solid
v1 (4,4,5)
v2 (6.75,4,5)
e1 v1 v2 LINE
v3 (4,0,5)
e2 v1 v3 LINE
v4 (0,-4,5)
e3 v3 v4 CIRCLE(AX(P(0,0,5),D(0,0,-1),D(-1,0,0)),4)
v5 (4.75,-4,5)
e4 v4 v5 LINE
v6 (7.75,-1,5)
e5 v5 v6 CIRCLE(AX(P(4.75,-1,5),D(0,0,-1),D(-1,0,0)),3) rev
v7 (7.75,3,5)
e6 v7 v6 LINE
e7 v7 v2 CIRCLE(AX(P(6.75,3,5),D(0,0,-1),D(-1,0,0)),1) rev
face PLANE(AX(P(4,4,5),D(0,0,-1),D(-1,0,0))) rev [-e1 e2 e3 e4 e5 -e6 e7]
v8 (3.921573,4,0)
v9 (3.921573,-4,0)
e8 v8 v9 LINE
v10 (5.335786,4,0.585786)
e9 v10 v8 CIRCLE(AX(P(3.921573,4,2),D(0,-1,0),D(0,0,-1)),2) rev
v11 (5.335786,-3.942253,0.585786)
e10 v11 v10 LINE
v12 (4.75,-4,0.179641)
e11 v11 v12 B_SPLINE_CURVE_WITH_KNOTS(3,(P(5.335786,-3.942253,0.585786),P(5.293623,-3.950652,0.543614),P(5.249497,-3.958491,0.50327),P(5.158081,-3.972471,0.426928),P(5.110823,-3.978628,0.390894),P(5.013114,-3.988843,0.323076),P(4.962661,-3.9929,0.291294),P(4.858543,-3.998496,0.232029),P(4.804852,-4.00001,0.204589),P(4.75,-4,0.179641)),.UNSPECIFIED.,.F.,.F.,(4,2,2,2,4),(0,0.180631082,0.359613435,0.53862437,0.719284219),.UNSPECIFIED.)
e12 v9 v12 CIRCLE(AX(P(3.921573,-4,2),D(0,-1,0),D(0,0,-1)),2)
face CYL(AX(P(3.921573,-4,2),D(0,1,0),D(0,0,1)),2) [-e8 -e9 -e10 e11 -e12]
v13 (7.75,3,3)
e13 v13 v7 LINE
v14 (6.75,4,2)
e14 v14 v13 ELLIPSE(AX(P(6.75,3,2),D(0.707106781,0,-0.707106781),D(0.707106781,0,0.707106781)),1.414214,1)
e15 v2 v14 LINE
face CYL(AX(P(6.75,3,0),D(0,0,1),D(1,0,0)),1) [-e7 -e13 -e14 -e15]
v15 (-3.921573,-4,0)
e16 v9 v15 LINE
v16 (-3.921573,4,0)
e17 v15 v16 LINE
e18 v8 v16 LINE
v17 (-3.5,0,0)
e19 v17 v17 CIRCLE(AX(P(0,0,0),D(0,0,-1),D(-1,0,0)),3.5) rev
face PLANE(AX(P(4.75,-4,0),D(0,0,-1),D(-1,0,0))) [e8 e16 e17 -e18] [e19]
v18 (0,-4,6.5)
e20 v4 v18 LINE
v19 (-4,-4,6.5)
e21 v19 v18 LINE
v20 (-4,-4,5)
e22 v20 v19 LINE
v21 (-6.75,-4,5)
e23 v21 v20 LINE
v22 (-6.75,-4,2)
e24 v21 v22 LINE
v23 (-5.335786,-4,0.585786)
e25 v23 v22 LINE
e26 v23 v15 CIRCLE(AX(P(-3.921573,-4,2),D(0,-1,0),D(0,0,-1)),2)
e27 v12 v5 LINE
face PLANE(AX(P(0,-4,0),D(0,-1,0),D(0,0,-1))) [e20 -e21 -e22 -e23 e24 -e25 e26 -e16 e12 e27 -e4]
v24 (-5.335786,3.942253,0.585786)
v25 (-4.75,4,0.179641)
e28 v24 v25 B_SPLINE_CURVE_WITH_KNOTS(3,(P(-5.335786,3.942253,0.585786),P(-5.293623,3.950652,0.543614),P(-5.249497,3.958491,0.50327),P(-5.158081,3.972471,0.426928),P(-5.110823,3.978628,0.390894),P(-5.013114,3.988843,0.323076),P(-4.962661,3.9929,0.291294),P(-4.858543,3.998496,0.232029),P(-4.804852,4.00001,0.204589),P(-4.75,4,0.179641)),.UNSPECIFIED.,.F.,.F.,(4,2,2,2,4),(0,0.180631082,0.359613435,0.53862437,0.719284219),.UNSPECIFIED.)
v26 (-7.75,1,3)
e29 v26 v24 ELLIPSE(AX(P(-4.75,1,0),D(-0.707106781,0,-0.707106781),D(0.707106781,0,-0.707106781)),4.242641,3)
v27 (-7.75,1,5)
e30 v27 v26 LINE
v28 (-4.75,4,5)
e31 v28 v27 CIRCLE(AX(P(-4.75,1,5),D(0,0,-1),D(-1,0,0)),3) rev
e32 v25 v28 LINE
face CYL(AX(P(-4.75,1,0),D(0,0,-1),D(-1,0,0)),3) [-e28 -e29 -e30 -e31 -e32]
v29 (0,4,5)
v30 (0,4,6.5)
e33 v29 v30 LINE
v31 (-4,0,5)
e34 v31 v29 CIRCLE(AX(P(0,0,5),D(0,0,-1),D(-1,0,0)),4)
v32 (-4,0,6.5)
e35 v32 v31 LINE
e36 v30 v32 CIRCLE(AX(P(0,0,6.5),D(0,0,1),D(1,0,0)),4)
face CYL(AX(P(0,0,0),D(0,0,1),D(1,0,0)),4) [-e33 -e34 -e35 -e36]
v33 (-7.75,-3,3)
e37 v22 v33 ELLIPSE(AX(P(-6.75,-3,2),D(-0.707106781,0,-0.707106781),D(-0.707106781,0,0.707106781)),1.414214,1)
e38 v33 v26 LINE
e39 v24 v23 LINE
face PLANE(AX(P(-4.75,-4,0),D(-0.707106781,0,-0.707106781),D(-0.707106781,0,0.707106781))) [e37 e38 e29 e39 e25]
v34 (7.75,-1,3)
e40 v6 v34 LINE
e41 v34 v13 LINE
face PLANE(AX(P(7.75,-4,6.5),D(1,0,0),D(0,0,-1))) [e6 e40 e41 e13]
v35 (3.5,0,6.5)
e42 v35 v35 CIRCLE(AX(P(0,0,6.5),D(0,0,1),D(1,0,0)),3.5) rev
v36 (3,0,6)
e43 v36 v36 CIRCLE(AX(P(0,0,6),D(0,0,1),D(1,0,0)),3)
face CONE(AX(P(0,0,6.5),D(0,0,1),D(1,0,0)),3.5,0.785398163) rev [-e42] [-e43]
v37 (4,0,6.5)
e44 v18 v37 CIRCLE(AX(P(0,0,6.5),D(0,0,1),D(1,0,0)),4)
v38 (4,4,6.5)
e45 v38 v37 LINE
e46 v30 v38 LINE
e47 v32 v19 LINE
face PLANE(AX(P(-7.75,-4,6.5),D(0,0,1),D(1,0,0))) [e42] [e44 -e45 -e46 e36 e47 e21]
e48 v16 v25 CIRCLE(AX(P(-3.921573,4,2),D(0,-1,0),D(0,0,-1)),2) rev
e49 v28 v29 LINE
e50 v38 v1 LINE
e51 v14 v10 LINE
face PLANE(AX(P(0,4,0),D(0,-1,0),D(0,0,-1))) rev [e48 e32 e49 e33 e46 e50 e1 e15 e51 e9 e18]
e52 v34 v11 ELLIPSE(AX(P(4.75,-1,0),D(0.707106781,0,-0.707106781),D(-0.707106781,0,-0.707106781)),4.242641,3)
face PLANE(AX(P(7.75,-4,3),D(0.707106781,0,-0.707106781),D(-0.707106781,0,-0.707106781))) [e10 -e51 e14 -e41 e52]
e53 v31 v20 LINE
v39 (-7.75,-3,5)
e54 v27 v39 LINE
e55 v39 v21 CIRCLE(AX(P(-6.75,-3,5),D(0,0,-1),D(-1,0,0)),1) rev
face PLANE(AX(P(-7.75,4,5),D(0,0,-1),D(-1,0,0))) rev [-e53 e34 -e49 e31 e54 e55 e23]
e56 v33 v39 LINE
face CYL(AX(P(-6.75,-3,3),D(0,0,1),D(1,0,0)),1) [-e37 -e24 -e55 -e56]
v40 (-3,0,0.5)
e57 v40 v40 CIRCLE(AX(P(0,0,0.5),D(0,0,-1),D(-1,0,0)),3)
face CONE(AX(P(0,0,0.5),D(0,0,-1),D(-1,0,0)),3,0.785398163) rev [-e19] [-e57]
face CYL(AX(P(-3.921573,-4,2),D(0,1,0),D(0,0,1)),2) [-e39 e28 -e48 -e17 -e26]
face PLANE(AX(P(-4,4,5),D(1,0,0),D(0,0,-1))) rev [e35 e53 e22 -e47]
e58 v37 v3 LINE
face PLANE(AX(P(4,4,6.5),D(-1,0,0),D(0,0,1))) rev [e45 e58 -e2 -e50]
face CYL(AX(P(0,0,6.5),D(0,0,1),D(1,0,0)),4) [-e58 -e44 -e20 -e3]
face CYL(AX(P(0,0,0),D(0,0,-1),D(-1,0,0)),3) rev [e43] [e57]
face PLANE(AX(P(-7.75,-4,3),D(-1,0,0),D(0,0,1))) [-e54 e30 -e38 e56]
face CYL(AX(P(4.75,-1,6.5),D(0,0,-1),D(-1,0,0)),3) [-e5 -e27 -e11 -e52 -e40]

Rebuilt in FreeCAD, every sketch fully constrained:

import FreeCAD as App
import Part
import Sketcher


def edges_at(feature, points):
    """Names of the edges that pass closest to the given points."""
    edges = feature.Shape.Edges
    near = lambda p: min(range(len(edges)), key=lambda i: edges[i].distToShape(Part.Vertex(*p))[0])
    return sorted({f"Edge{near(p) + 1}" for p in points})

doc = App.newDocument("Part")
body = doc.addObject("PartDesign::Body", "Body")

# Sketch on XZ plane
sketch1 = body.newObject("Sketcher::SketchObject", "Sketch")
sketch1.AttachmentSupport = (doc.getObject("XZ_Plane"), [""])
sketch1.MapMode = "FlatFace"
sketch1.AttachmentOffset = App.Placement(App.Vector(0, 0, -4), App.Rotation())
sketch1.addGeometry(Part.LineSegment(App.Vector(-7.8, 3, 0), App.Vector(-7.8, 6.5, 0)), False)
sketch1.addGeometry(Part.LineSegment(App.Vector(-7.8, 6.5, 0), App.Vector(7.8, 6.5, 0)), False)
sketch1.addGeometry(Part.LineSegment(App.Vector(7.8, 6.5, 0), App.Vector(7.8, 3, 0)), False)
sketch1.addGeometry(Part.LineSegment(App.Vector(7.8, 3, 0), App.Vector(4.8, 0, 0)), False)
sketch1.addGeometry(Part.LineSegment(App.Vector(4.8, 0, 0), App.Vector(-4.8, 0, 0)), False)
sketch1.addGeometry(Part.LineSegment(App.Vector(-4.8, 0, 0), App.Vector(-7.8, 3, 0)), False)
sketch1.addConstraint(Sketcher.Constraint("Coincident", 0, 2, 1, 1))
sketch1.addConstraint(Sketcher.Constraint("Coincident", 1, 2, 2, 1))
sketch1.addConstraint(Sketcher.Constraint("Coincident", 2, 2, 3, 1))
sketch1.addConstraint(Sketcher.Constraint("Coincident", 3, 2, 4, 1))
sketch1.addConstraint(Sketcher.Constraint("Coincident", 4, 2, 5, 1))
sketch1.addConstraint(Sketcher.Constraint("Coincident", 5, 2, 0, 1))
sketch1.addConstraint(Sketcher.Constraint("Vertical", 0))
sketch1.addConstraint(Sketcher.Constraint("Horizontal", 1))
sketch1.addConstraint(Sketcher.Constraint("Vertical", 2))
sketch1.addConstraint(Sketcher.Constraint("Horizontal", 4))
sketch1.addConstraint(Sketcher.Constraint("Symmetric", 3, 2, 4, 2, -1, 1))
sketch1.addConstraint(Sketcher.Constraint("Symmetric", 2, 2, 5, 2, -2))
sketch1.addConstraint(Sketcher.Constraint("Perpendicular", 3, 5))
sketch1.addConstraint(Sketcher.Constraint("DistanceX", 1, 1, 1, 2, 15.5))
sketch1.addConstraint(Sketcher.Constraint("DistanceX", 4, 2, 4, 1, 9.5))
sketch1.addConstraint(Sketcher.Constraint("DistanceY", 0, 1, 0, 2, 3.5))
pad1 = body.newObject("PartDesign::Pad", "Pad")
pad1.Profile = sketch1
pad1.Length = 8

# Sketch on XZ plane
sketch2 = body.newObject("Sketcher::SketchObject", "Sketch001")
sketch2.AttachmentSupport = (doc.getObject("XZ_Plane"), [""])
sketch2.MapMode = "FlatFace"
sketch2.AttachmentOffset = App.Placement(App.Vector(0, 0, 4), App.Rotation())
sketch2.addGeometry(Part.LineSegment(App.Vector(-7.8, 6.5, 0), App.Vector(-7.8, 5, 0)), False)
sketch2.addGeometry(Part.LineSegment(App.Vector(-7.8, 5, 0), App.Vector(-4, 5, 0)), False)
sketch2.addGeometry(Part.LineSegment(App.Vector(-4, 5, 0), App.Vector(-4, 6.5, 0)), False)
sketch2.addGeometry(Part.LineSegment(App.Vector(-4, 6.5, 0), App.Vector(-7.8, 6.5, 0)), False)
sketch2.addConstraint(Sketcher.Constraint("Coincident", 0, 2, 1, 1))
sketch2.addConstraint(Sketcher.Constraint("Coincident", 1, 2, 2, 1))
sketch2.addConstraint(Sketcher.Constraint("Coincident", 2, 2, 3, 1))
sketch2.addConstraint(Sketcher.Constraint("Coincident", 3, 2, 0, 1))
sketch2.addConstraint(Sketcher.Constraint("Vertical", 0))
sketch2.addConstraint(Sketcher.Constraint("Horizontal", 1))
sketch2.addConstraint(Sketcher.Constraint("Vertical", 2))
sketch2.addConstraint(Sketcher.Constraint("Horizontal", 3))
sketch2.addConstraint(Sketcher.Constraint("DistanceY", 0, 2, 0, 1, 1.5))
sketch2.addConstraint(Sketcher.Constraint("DistanceY", -1, 1, 0, 2, 5.0))
sketch2.addConstraint(Sketcher.Constraint("DistanceX", 1, 2, -1, 1, 4.0))
sketch2.addConstraint(Sketcher.Constraint("DistanceX", 1, 1, 1, 2, 3.75))
pocket1 = body.newObject("PartDesign::Pocket", "Pocket")
pocket1.Profile = sketch2
pocket1.Type = "ThroughAll"

# Sketch on XZ plane
sketch3 = body.newObject("Sketcher::SketchObject", "Sketch002")
sketch3.AttachmentSupport = (doc.getObject("XZ_Plane"), [""])
sketch3.MapMode = "FlatFace"
sketch3.AttachmentOffset = App.Placement(App.Vector(0, 0, 4), App.Rotation())
sketch3.addGeometry(Part.LineSegment(App.Vector(4, 6.5, 0), App.Vector(4, 5, 0)), False)
sketch3.addGeometry(Part.LineSegment(App.Vector(4, 5, 0), App.Vector(7.8, 5, 0)), False)
sketch3.addGeometry(Part.LineSegment(App.Vector(7.8, 5, 0), App.Vector(7.8, 6.5, 0)), False)
sketch3.addGeometry(Part.LineSegment(App.Vector(7.8, 6.5, 0), App.Vector(4, 6.5, 0)), False)
sketch3.addConstraint(Sketcher.Constraint("Coincident", 0, 2, 1, 1))
sketch3.addConstraint(Sketcher.Constraint("Coincident", 1, 2, 2, 1))
sketch3.addConstraint(Sketcher.Constraint("Coincident", 2, 2, 3, 1))
sketch3.addConstraint(Sketcher.Constraint("Coincident", 3, 2, 0, 1))
sketch3.addConstraint(Sketcher.Constraint("Vertical", 0))
sketch3.addConstraint(Sketcher.Constraint("Horizontal", 1))
sketch3.addConstraint(Sketcher.Constraint("Vertical", 2))
sketch3.addConstraint(Sketcher.Constraint("Horizontal", 3))
sketch3.addConstraint(Sketcher.Constraint("DistanceY", 0, 2, 0, 1, 1.5))
sketch3.addConstraint(Sketcher.Constraint("DistanceX", -1, 1, 0, 2, 4.0))
sketch3.addConstraint(Sketcher.Constraint("DistanceY", -1, 1, 0, 2, 5.0))
sketch3.addConstraint(Sketcher.Constraint("DistanceX", 1, 1, 1, 2, 3.75))
pocket2 = body.newObject("PartDesign::Pocket", "Pocket001")
pocket2.Profile = sketch3
pocket2.Type = "ThroughAll"

# Sketch on XY plane
sketch4 = body.newObject("Sketcher::SketchObject", "Sketch003")
sketch4.AttachmentSupport = (doc.getObject("XY_Plane"), [""])
sketch4.MapMode = "FlatFace"
sketch4.addGeometry(Part.Circle(App.Vector(0, 0, 0), App.Vector(0, 0, 1), 3), False)
sketch4.addConstraint(Sketcher.Constraint("Coincident", 0, 3, -1, 1))
sketch4.addConstraint(Sketcher.Constraint("Diameter", 0, 6.0))
doc.recompute()
hole = body.newObject("PartDesign::Hole", "Hole")
hole.Profile = sketch4
hole.ThreadType = "None"
hole.Diameter = 6
hole.DepthType = "ThroughAll"
hole.Reversed = True
doc.recompute()

chamfer = body.newObject("PartDesign::Chamfer", "Chamfer")
chamfer.Base = (hole, edges_at(hole, [(-3, 0, 0), (-3, 0, 6.5)]))
chamfer.Size = 0.5
doc.recompute()

fillet = body.newObject("PartDesign::Fillet", "Fillet")
fillet.Base = (chamfer, edges_at(chamfer, [(7.75, 4, 4), (-7.75, -4, 4)]))
fillet.Radius = 1
doc.recompute()

fillet2 = body.newObject("PartDesign::Fillet", "Fillet001")
fillet2.Base = (fillet, edges_at(fillet, [(-4.75, 0, 0), (4.75, 0, 0)]))
fillet2.Radius = 2
doc.recompute()

fillet3 = body.newObject("PartDesign::Fillet", "Fillet002")
fillet3.Base = (fillet2, edges_at(fillet2, [(7.75, -4, 4), (-7.75, 4, 4)]))
fillet3.Radius = 3
doc.recompute()

fillet4 = body.newObject("PartDesign::Fillet", "Fillet003")
fillet4.Base = (fillet3, edges_at(fillet3, [(-4, 4, 5.75), (4, -4, 5.75)]))
fillet4.Radius = 4

doc.recompute()
